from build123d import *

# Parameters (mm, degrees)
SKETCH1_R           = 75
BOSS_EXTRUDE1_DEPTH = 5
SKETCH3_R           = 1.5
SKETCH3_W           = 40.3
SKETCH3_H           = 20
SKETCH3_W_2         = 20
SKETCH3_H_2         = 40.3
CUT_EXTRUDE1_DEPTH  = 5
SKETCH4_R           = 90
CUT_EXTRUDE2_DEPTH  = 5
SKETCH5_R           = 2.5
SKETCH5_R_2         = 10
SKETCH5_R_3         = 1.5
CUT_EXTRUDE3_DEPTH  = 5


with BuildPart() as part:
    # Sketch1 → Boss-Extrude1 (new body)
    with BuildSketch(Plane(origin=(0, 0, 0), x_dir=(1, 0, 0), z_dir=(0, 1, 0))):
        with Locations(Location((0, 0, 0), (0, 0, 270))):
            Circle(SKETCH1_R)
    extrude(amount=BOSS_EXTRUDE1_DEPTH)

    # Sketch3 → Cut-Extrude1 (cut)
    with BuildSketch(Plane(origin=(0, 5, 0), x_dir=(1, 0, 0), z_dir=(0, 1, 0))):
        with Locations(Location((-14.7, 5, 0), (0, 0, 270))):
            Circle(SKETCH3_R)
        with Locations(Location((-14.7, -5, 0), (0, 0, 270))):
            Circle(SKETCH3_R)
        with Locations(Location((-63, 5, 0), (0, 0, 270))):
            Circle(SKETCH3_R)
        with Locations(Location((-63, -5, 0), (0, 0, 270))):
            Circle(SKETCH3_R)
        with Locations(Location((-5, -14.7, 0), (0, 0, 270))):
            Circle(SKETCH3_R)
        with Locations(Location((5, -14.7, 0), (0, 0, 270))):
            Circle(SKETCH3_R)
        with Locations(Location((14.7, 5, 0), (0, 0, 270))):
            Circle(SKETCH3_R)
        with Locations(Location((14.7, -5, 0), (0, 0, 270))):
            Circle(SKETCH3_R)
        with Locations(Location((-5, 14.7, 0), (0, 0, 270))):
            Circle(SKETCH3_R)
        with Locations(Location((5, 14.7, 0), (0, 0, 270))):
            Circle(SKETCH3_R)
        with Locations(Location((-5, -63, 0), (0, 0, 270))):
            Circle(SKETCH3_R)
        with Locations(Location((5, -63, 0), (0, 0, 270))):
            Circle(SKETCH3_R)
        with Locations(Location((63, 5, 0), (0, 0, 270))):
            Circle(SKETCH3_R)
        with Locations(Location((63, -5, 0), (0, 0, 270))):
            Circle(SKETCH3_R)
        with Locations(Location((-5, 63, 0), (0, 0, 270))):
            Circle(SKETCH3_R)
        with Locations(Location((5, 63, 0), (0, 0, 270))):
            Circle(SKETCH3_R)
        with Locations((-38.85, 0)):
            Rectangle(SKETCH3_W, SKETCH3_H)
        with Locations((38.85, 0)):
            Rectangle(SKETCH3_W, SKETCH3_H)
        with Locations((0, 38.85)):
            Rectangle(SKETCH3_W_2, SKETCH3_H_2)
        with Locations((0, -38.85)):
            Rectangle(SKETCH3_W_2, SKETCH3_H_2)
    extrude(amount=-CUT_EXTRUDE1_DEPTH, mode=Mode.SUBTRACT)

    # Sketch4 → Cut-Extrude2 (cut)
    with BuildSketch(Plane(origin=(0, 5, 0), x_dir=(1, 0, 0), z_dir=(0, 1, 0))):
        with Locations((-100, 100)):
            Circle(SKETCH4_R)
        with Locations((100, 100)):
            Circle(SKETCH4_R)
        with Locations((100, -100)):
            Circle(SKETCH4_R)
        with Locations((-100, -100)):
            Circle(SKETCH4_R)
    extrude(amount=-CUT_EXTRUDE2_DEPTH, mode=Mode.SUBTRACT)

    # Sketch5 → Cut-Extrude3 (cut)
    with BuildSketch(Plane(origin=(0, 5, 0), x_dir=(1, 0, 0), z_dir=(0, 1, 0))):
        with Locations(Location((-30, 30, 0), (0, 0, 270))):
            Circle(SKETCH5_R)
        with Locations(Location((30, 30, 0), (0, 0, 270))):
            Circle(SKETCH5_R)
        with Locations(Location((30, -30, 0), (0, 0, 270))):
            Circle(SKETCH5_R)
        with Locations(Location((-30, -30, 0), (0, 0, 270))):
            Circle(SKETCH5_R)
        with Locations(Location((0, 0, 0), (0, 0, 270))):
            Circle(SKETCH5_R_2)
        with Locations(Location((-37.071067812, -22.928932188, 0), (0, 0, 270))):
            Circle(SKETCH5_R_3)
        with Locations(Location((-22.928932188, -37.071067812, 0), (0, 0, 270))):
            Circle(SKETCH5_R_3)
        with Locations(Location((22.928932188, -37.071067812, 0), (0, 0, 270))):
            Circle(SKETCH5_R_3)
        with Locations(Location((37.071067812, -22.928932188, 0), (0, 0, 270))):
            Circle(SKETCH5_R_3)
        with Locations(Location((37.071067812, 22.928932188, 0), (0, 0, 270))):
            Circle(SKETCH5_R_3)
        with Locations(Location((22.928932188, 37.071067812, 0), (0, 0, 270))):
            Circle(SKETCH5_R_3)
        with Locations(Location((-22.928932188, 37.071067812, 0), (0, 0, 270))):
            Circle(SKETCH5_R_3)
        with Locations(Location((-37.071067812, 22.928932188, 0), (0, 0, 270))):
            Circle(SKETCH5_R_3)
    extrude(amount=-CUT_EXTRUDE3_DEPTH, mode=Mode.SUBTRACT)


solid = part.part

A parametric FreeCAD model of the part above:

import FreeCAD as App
import Part
import Sketcher

V = App.Vector
Q = App.Units.Quantity

doc = App.newDocument("Part")
params = doc.addObject("Spreadsheet::Sheet", "Params")
for row, (alias, value) in enumerate([
    ("sketch1_diameter", "150 mm"),
    ("pad1_length", "5 mm"),
    ("sketch2_diameter", "3 mm"),
    ("sketch2_width", "20 mm"),
    ("sketch2_width2", "40.3 mm"),
    ("pocket1_length", "5 mm"),
    ("sketch3_diameter", "180 mm"),
    ("pocket2_length", "5 mm"),
    ("sketch4_diameter", "5 mm"),
    ("sketch4_diameter2", "20 mm"),
    ("sketch4_diameter3", "3 mm"),
    ("pocket3_length", "5 mm"),
], start=1):
    params.set(f"A{row}", alias)
    params.set(f"B{row}", "=" + value)
    params.setAlias(f"B{row}", alias)

body = doc.addObject("PartDesign::Body", "Body")

sketch1 = body.newObject("Sketcher::SketchObject", "Sketch")
sketch1.AttachmentSupport = (doc.getObject("XZ_Plane"), [""])
sketch1.MapMode = "FlatFace"
sketch1.addGeometry(Part.Circle(V(0, 0, 0), V(0, 0, 1), 75), False)
sketch1.addConstraint(Sketcher.Constraint("Coincident", 0, 3, -1, 1))
sketch1.addConstraint(Sketcher.Constraint("Diameter", 0, Q("150 mm")))
sketch1.setExpression("Constraints[1]", "Params.sketch1_diameter")
pad1 = body.newObject("PartDesign::Pad", "Pad")
pad1.Profile = sketch1
pad1.setExpression("Length", "Params.pad1_length")
pad1.Reversed = True

sketch2 = body.newObject("Sketcher::SketchObject", "Sketch001")
sketch2.AttachmentSupport = (doc.getObject("XZ_Plane"), [""])
sketch2.MapMode = "FlatFace"
sketch2.AttachmentOffset = App.Placement(V(0, 0, -5), App.Rotation())
sketch2.addGeometry(Part.Circle(V(-14.7, -5, 0), V(0, 0, 1), 1.5), False)
sketch2.addGeometry(Part.Circle(V(-14.7, 5, 0), V(0, 0, 1), 1.5), False)
sketch2.addGeometry(Part.Circle(V(-63, -5, 0), V(0, 0, 1), 1.5), False)
sketch2.addGeometry(Part.Circle(V(-63, 5, 0), V(0, 0, 1), 1.5), False)
sketch2.addGeometry(Part.Circle(V(-5, 14.7, 0), V(0, 0, 1), 1.5), False)
sketch2.addGeometry(Part.Circle(V(5, 14.7, 0), V(0, 0, 1), 1.5), False)
sketch2.addGeometry(Part.Circle(V(14.7, -5, 0), V(0, 0, 1), 1.5), False)
sketch2.addGeometry(Part.Circle(V(14.7, 5, 0), V(0, 0, 1), 1.5), False)
sketch2.addGeometry(Part.Circle(V(-5, -14.7, 0), V(0, 0, 1), 1.5), False)
sketch2.addGeometry(Part.Circle(V(5, -14.7, 0), V(0, 0, 1), 1.5), False)
sketch2.addGeometry(Part.Circle(V(-5, 63, 0), V(0, 0, 1), 1.5), False)
sketch2.addGeometry(Part.Circle(V(5, 63, 0), V(0, 0, 1), 1.5), False)
sketch2.addGeometry(Part.Circle(V(63, -5, 0), V(0, 0, 1), 1.5), False)
sketch2.addGeometry(Part.Circle(V(63, 5, 0), V(0, 0, 1), 1.5), False)
sketch2.addGeometry(Part.Circle(V(-5, -63, 0), V(0, 0, 1), 1.5), False)
sketch2.addGeometry(Part.Circle(V(5, -63, 0), V(0, 0, 1), 1.5), False)
sketch2.addGeometry(Part.LineSegment(V(-59, -10, 0), V(-59, 10, 0)), False)
sketch2.addGeometry(Part.LineSegment(V(-59, 10, 0), V(-18.7, 10, 0)), False)
sketch2.addGeometry(Part.LineSegment(V(-18.7, 10, 0), V(-18.7, -10, 0)), False)
sketch2.addGeometry(Part.LineSegment(V(-18.7, -10, 0), V(-59, -10, 0)), False)
sketch2.addGeometry(Part.LineSegment(V(18.7, -10, 0), V(18.7, 10, 0)), False)
sketch2.addGeometry(Part.LineSegment(V(18.7, 10, 0), V(59, 10, 0)), False)
sketch2.addGeometry(Part.LineSegment(V(59, 10, 0), V(59, -10, 0)), False)
sketch2.addGeometry(Part.LineSegment(V(59, -10, 0), V(18.7, -10, 0)), False)
sketch2.addGeometry(Part.LineSegment(V(-10, -59, 0), V(-10, -18.7, 0)), False)
sketch2.addGeometry(Part.LineSegment(V(-10, -18.7, 0), V(10, -18.7, 0)), False)
sketch2.addGeometry(Part.LineSegment(V(10, -18.7, 0), V(10, -59, 0)), False)
sketch2.addGeometry(Part.LineSegment(V(10, -59, 0), V(-10, -59, 0)), False)
sketch2.addGeometry(Part.LineSegment(V(-10, 18.7, 0), V(-10, 59, 0)), False)
sketch2.addGeometry(Part.LineSegment(V(-10, 59, 0), V(10, 59, 0)), False)
sketch2.addGeometry(Part.LineSegment(V(10, 59, 0), V(10, 18.7, 0)), False)
sketch2.addGeometry(Part.LineSegment(V(10, 18.7, 0), V(-10, 18.7, 0)), False)
sketch2.addConstraint(Sketcher.Constraint("Coincident", 16, 2, 17, 1))
sketch2.addConstraint(Sketcher.Constraint("Coincident", 17, 2, 18, 1))
sketch2.addConstraint(Sketcher.Constraint("Coincident", 18, 2, 19, 1))
sketch2.addConstraint(Sketcher.Constraint("Coincident", 19, 2, 16, 1))
sketch2.addConstraint(Sketcher.Constraint("Coincident", 20, 2, 21, 1))
sketch2.addConstraint(Sketcher.Constraint("Coincident", 21, 2, 22, 1))
sketch2.addConstraint(Sketcher.Constraint("Coincident", 22, 2, 23, 1))
sketch2.addConstraint(Sketcher.Constraint("Coincident", 23, 2, 20, 1))
sketch2.addConstraint(Sketcher.Constraint("Coincident", 24, 2, 25, 1))
sketch2.addConstraint(Sketcher.Constraint("Coincident", 25, 2, 26, 1))
sketch2.addConstraint(Sketcher.Constraint("Coincident", 26, 2, 27, 1))
sketch2.addConstraint(Sketcher.Constraint("Coincident", 27, 2, 24, 1))
sketch2.addConstraint(Sketcher.Constraint("Coincident", 28, 2, 29, 1))
sketch2.addConstraint(Sketcher.Constraint("Coincident", 29, 2, 30, 1))
sketch2.addConstraint(Sketcher.Constraint("Coincident", 30, 2, 31, 1))
sketch2.addConstraint(Sketcher.Constraint("Coincident", 31, 2, 28, 1))
sketch2.addConstraint(Sketcher.Constraint("Vertical", 16))
sketch2.addConstraint(Sketcher.Constraint("Horizontal", 17))
sketch2.addConstraint(Sketcher.Constraint("Vertical", 18))
sketch2.addConstraint(Sketcher.Constraint("Horizontal", 19))
sketch2.addConstraint(Sketcher.Constraint("Vertical", 20))
sketch2.addConstraint(Sketcher.Constraint("Horizontal", 21))
sketch2.addConstraint(Sketcher.Constraint("Vertical", 22))
sketch2.addConstraint(Sketcher.Constraint("Horizontal", 23))
sketch2.addConstraint(Sketcher.Constraint("Vertical", 24))
sketch2.addConstraint(Sketcher.Constraint("Horizontal", 25))
sketch2.addConstraint(Sketcher.Constraint("Vertical", 26))
sketch2.addConstraint(Sketcher.Constraint("Horizontal", 27))
sketch2.addConstraint(Sketcher.Constraint("Vertical", 28))
sketch2.addConstraint(Sketcher.Constraint("Horizontal", 29))
sketch2.addConstraint(Sketcher.Constraint("Vertical", 30))
sketch2.addConstraint(Sketcher.Constraint("Horizontal", 31))
sketch2.addConstraint(Sketcher.Constraint("Equal", 0, 1))
sketch2.addConstraint(Sketcher.Constraint("Equal", 1, 2))
sketch2.addConstraint(Sketcher.Constraint("Equal", 2, 3))
sketch2.addConstraint(Sketcher.Constraint("Equal", 3, 4))
sketch2.addConstraint(Sketcher.Constraint("Equal", 4, 5))
sketch2.addConstraint(Sketcher.Constraint("Equal", 5, 6))
sketch2.addConstraint(Sketcher.Constraint("Equal", 6, 7))
sketch2.addConstraint(Sketcher.Constraint("Equal", 7, 8))
sketch2.addConstraint(Sketcher.Constraint("Equal", 8, 9))
sketch2.addConstraint(Sketcher.Constraint("Equal", 9, 10))
sketch2.addConstraint(Sketcher.Constraint("Equal", 10, 11))
sketch2.addConstraint(Sketcher.Constraint("Equal", 11, 12))
sketch2.addConstraint(Sketcher.Constraint("Equal", 12, 13))
sketch2.addConstraint(Sketcher.Constraint("Equal", 13, 14))
sketch2.addConstraint(Sketcher.Constraint("Equal", 14, 15))
sketch2.addConstraint(Sketcher.Constraint("Symmetric", 1, 3, 6, 3, -1, 1))
sketch2.addConstraint(Sketcher.Constraint("Symmetric", 0, 3, 7, 3, -1, 1))
sketch2.addConstraint(Sketcher.Constraint("Symmetric", 5, 3, 8, 3, -1, 1))
sketch2.addConstraint(Sketcher.Constraint("Symmetric", 4, 3, 9, 3, -1, 1))
sketch2.addConstraint(Sketcher.Constraint("Symmetric", 3, 3, 12, 3, -1, 1))
sketch2.addConstraint(Sketcher.Constraint("Symmetric", 2, 3, 13, 3, -1, 1))
sketch2.addConstraint(Sketcher.Constraint("Symmetric", 11, 3, 14, 3, -1, 1))
sketch2.addConstraint(Sketcher.Constraint("Symmetric", 10, 3, 15, 3, -1, 1))
sketch2.addConstraint(Sketcher.Constraint("Symmetric", 18, 2, 20, 2, -1, 1))
sketch2.addConstraint(Sketcher.Constraint("Symmetric", 16, 2, 22, 2, -1, 1))
sketch2.addConstraint(Sketcher.Constraint("Symmetric", 26, 2, 28, 2, -1, 1))
sketch2.addConstraint(Sketcher.Constraint("Symmetric", 24, 2, 30, 2, -1, 1))
sketch2.addConstraint(Sketcher.Constraint("Symmetric", 4, 3, 5, 3, -2))
sketch2.addConstraint(Sketcher.Constraint("Symmetric", 0, 3, 6, 3, -2))
sketch2.addConstraint(Sketcher.Constraint("Symmetric", 10, 3, 11, 3, -2))
sketch2.addConstraint(Sketcher.Constraint("Symmetric", 2, 3, 12, 3, -2))
sketch2.addConstraint(Sketcher.Constraint("Horizontal", 0, 3, 2, 3))
sketch2.addConstraint(Sketcher.Constraint("Horizontal", 17, 2, 20, 2))
sketch2.addConstraint(Sketcher.Constraint("Vertical", 8, 3, 10, 3))
sketch2.addConstraint(Sketcher.Constraint("Vertical", 27, 2, 28, 2))
sketch2.addConstraint(Sketcher.Constraint("Equal", 31, 16))
sketch2.addConstraint(Sketcher.Constraint("Equal", 23, 24))
sketch2.addConstraint(Sketcher.Constraint("Diameter", 0, Q("3 mm")))
sketch2.addConstraint(Sketcher.Constraint("DistanceX", 25, 1, 25, 2, Q("20 mm")))
sketch2.addConstraint(Sketcher.Constraint("DistanceX", 17, 1, 17, 2, Q("40.3 mm")))
sketch2.addConstraint(Sketcher.Constraint("DistanceY", 0, 3, -1, 1, Q("5 mm")))
sketch2.addConstraint(Sketcher.Constraint("DistanceX", 2, 3, -1, 1, Q("63 mm")))
sketch2.addConstraint(Sketcher.Constraint("DistanceX", 4, 3, -1, 1, Q("5 mm")))
sketch2.addConstraint(Sketcher.Constraint("DistanceY", -1, 1, 10, 3, Q("63 mm")))
sketch2.addConstraint(Sketcher.Constraint("DistanceX", 16, 2, -1, 1, Q("59 mm")))
sketch2.addConstraint(Sketcher.Constraint("DistanceY", 26, 2, -1, 1, Q("59 mm")))
sketch2.addConstraint(Sketcher.Constraint("DistanceX", 17, 2, 1, 3, Q("4 mm")))
sketch2.addConstraint(Sketcher.Constraint("DistanceY", 24, 2, 8, 3, Q("4 mm")))
sketch2.setExpression("Constraints[69]", "Params.sketch2_diameter")
sketch2.setExpression("Constraints[70]", "Params.sketch2_width")
sketch2.setExpression("Constraints[71]", "Params.sketch2_width2")
pocket1 = body.newObject("PartDesign::Pocket", "Pocket")
pocket1.Profile = sketch2
pocket1.setExpression("Length", "Params.pocket1_length")
pocket1.Reversed = True

sketch3 = body.newObject("Sketcher::SketchObject", "Sketch002")
sketch3.AttachmentSupport = (doc.getObject("XZ_Plane"), [""])
sketch3.MapMode = "FlatFace"
sketch3.AttachmentOffset = App.Placement(V(0, 0, -5), App.Rotation())
sketch3.addGeometry(Part.Circle(V(-100, -100, 0), V(0, 0, 1), 90), False)
sketch3.addGeometry(Part.Circle(V(100, -100, 0), V(0, 0, 1), 90), False)
sketch3.addGeometry(Part.Circle(V(100, 100, 0), V(0, 0, 1), 90), False)
sketch3.addGeometry(Part.Circle(V(-100, 100, 0), V(0, 0, 1), 90), False)
sketch3.addConstraint(Sketcher.Constraint("Equal", 0, 1))
sketch3.addConstraint(Sketcher.Constraint("Equal", 1, 2))
sketch3.addConstraint(Sketcher.Constraint("Equal", 2, 3))
sketch3.addConstraint(Sketcher.Constraint("Symmetric", 0, 3, 2, 3, -1, 1))
sketch3.addConstraint(Sketcher.Constraint("Symmetric", 1, 3, 3, 3, -1, 1))
sketch3.addConstraint(Sketcher.Constraint("Symmetric", 0, 3, 1, 3, -2))
sketch3.addConstraint(Sketcher.Constraint("Diameter", 0, Q("180 mm")))
sketch3.addConstraint(Sketcher.Constraint("DistanceX", 0, 3, -1, 1, Q("100 mm")))
sketch3.addConstraint(Sketcher.Constraint("DistanceY", 0, 3, -1, 1, Q("100 mm")))
sketch3.setExpression("Constraints[6]", "Params.sketch3_diameter")
pocket2 = body.newObject("PartDesign::Pocket", "Pocket001")
pocket2.Profile = sketch3
pocket2.setExpression("Length", "Params.pocket2_length")
pocket2.Reversed = True

sketch4 = body.newObject("Sketcher::SketchObject", "Sketch003")
sketch4.AttachmentSupport = (doc.getObject("XZ_Plane"), [""])
sketch4.MapMode = "FlatFace"
sketch4.AttachmentOffset = App.Placement(V(0, 0, -5), App.Rotation())
sketch4.addGeometry(Part.Circle(V(-30, -30, 0), V(0, 0, 1), 2.5), False)
sketch4.addGeometry(Part.Circle(V(30, -30, 0), V(0, 0, 1), 2.5), False)
sketch4.addGeometry(Part.Circle(V(30, 30, 0), V(0, 0, 1), 2.5), False)
sketch4.addGeometry(Part.Circle(V(-30, 30, 0), V(0, 0, 1), 2.5), False)
sketch4.addGeometry(Part.Circle(V(0, 0, 0), V(0, 0, 1), 10), False)
sketch4.addGeometry(Part.Circle(V(-37.071068, 22.928932, 0), V(0, 0, 1), 1.5), False)
sketch4.addGeometry(Part.Circle(V(-22.928932, 37.071068, 0), V(0, 0, 1), 1.5), False)
sketch4.addGeometry(Part.Circle(V(22.928932, 37.071068, 0), V(0, 0, 1), 1.5), False)
sketch4.addGeometry(Part.Circle(V(37.071068, 22.928932, 0), V(0, 0, 1), 1.5), False)
sketch4.addGeometry(Part.Circle(V(37.071068, -22.928932, 0), V(0, 0, 1), 1.5), False)
sketch4.addGeometry(Part.Circle(V(22.928932, -37.071068, 0), V(0, 0, 1), 1.5), False)
sketch4.addGeometry(Part.Circle(V(-22.928932, -37.071068, 0), V(0, 0, 1), 1.5), False)
sketch4.addGeometry(Part.Circle(V(-37.071068, -22.928932, 0), V(0, 0, 1), 1.5), False)
sketch4.addConstraint(Sketcher.Constraint("Coincident", 4, 3, -1, 1))
sketch4.addConstraint(Sketcher.Constraint("Equal", 0, 1))
sketch4.addConstraint(Sketcher.Constraint("Equal", 1, 2))
sketch4.addConstraint(Sketcher.Constraint("Equal", 2, 3))
sketch4.addConstraint(Sketcher.Constraint("Equal", 5, 6))
sketch4.addConstraint(Sketcher.Constraint("Equal", 6, 7))
sketch4.addConstraint(Sketcher.Constraint("Equal", 7, 8))
sketch4.addConstraint(Sketcher.Constraint("Equal", 8, 9))
sketch4.addConstraint(Sketcher.Constraint("Equal", 9, 10))
sketch4.addConstraint(Sketcher.Constraint("Equal", 10, 11))
sketch4.addConstraint(Sketcher.Constraint("Equal", 11, 12))
sketch4.addConstraint(Sketcher.Constraint("Symmetric", 0, 3, 2, 3, -1, 1))
sketch4.addConstraint(Sketcher.Constraint("Symmetric", 1, 3, 3, 3, -1, 1))
sketch4.addConstraint(Sketcher.Constraint("Symmetric", 5, 3, 9, 3, -1, 1))
sketch4.addConstraint(Sketcher.Constraint("Symmetric", 6, 3, 10, 3, -1, 1))
sketch4.addConstraint(Sketcher.Constraint("Symmetric", 7, 3, 11, 3, -1, 1))
sketch4.addConstraint(Sketcher.Constraint("Symmetric", 8, 3, 12, 3, -1, 1))
sketch4.addConstraint(Sketcher.Constraint("Symmetric", 0, 3, 1, 3, -2))
sketch4.addConstraint(Sketcher.Constraint("Symmetric", 6, 3, 7, 3, -2))
sketch4.addConstraint(Sketcher.Constraint("Symmetric", 5, 3, 8, 3, -2))
sketch4.addConstraint(Sketcher.Constraint("Diameter", 0, Q("5 mm")))
sketch4.addConstraint(Sketcher.Constraint("Diameter", 4, Q("20 mm")))
sketch4.addConstraint(Sketcher.Constraint("Diameter", 5, Q("3 mm")))
sketch4.addConstraint(Sketcher.Constraint("DistanceX", 0, 3, -1, 1, Q("30 mm")))
sketch4.addConstraint(Sketcher.Constraint("DistanceY", 0, 3, -1, 1, Q("30 mm")))
sketch4.addConstraint(Sketcher.Constraint("DistanceX", 5, 3, 7, 3, Q("60 mm")))
sketch4.addConstraint(Sketcher.Constraint("DistanceY", 9, 3, 7, 3, Q("60 mm")))
sketch4.addConstraint(Sketcher.Constraint("DistanceX", 5, 3, -1, 1, Q("37.071068 mm")))
sketch4.addConstraint(Sketcher.Constraint("DistanceY", -1, 1, 5, 3, Q("22.928932 mm")))
sketch4.setExpression("Constraints[20]", "Params.sketch4_diameter")
sketch4.setExpression("Constraints[21]", "Params.sketch4_diameter2")
sketch4.setExpression("Constraints[22]", "Params.sketch4_diameter3")
pocket3 = body.newObject("PartDesign::Pocket", "Pocket002")
pocket3.Profile = sketch4
pocket3.setExpression("Length", "Params.pocket3_length")
pocket3.Reversed = True

doc.recompute()
